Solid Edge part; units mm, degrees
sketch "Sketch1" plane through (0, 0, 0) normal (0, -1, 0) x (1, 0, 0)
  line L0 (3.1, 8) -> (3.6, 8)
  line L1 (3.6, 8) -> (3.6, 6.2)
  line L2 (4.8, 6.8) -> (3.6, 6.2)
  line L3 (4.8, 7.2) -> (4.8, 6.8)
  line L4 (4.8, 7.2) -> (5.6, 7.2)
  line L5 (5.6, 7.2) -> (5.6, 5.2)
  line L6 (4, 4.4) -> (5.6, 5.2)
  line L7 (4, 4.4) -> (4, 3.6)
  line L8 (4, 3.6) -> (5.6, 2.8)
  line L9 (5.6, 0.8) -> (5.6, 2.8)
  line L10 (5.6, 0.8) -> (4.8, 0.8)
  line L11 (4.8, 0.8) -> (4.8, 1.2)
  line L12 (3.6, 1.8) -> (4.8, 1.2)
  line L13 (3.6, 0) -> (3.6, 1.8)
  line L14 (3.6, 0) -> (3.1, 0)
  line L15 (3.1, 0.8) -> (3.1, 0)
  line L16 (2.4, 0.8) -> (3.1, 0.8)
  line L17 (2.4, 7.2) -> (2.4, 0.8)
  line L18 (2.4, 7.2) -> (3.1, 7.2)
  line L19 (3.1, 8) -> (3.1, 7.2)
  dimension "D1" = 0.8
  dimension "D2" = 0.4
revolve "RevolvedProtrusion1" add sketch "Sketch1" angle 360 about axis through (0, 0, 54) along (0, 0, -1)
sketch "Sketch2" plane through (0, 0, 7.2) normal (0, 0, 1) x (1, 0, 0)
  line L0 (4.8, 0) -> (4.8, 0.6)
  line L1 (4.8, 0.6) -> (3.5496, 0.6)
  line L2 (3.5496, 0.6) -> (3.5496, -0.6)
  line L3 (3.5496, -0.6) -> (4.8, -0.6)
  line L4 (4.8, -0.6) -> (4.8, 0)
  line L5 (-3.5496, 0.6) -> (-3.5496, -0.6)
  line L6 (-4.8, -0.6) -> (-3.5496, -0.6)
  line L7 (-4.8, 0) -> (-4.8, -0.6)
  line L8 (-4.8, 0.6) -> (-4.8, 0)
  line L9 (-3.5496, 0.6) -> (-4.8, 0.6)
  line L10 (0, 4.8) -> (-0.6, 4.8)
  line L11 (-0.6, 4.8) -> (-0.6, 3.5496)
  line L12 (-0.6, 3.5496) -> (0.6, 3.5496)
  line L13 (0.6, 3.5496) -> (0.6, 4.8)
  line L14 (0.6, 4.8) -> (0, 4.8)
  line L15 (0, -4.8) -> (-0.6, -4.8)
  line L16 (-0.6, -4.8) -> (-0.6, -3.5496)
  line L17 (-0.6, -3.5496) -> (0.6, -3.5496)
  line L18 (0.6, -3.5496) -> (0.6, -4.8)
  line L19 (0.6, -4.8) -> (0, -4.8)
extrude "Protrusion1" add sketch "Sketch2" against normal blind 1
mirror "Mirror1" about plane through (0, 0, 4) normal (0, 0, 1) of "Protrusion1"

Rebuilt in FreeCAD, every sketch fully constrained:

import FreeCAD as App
import Part
import Sketcher
from FreeCAD import Vector
Q = App.Units.Quantity

doc = App.newDocument("Part")
params = doc.addObject("Spreadsheet::Sheet", "Params")
for row, (alias, value) in enumerate([
    ("sketch1_height", "2 mm"),
    ("sketch1_width", "0.5 mm"),
    ("sketch1_width2", "0.7 mm"),
    ("sketch1_width3", "0.8 mm"),
    ("sketch1_height2", "6.4 mm"),
    ("revolution_angle", "360 deg"),
    ("sketch2_width", "1.2 mm"),
    ("pad1_length", "1 mm"),
], start=1):
    params.set(f"A{row}", alias)
    params.set(f"B{row}", "=" + value)
    params.setAlias(f"B{row}", alias)

body = doc.addObject("PartDesign::Body", "Body")

sketch1 = doc.addObject("Sketcher::SketchObject", "Sketch")
body.addObject(sketch1)
sketch1.AttachmentSupport = (doc.XZ_Plane, [""])
sketch1.MapMode = "FlatFace"
sketch1.addGeometry([
    Part.LineSegment(Vector(3.6, 8, 0), Vector(3.1, 8, 0)),
    Part.LineSegment(Vector(3.1, 8, 0), Vector(3.1, 7.2, 0)),
    Part.LineSegment(Vector(3.1, 7.2, 0), Vector(2.4, 7.2, 0)),
    Part.LineSegment(Vector(2.4, 7.2, 0), Vector(2.4, 0.8, 0)),
    Part.LineSegment(Vector(2.4, 0.8, 0), Vector(3.1, 0.8, 0)),
    Part.LineSegment(Vector(3.1, 0.8, 0), Vector(3.1, 0, 0)),
    Part.LineSegment(Vector(3.1, 0, 0), Vector(3.6, 0, 0)),
    Part.LineSegment(Vector(3.6, 0, 0), Vector(3.6, 1.8, 0)),
    Part.LineSegment(Vector(3.6, 1.8, 0), Vector(4.8, 1.2, 0)),
    Part.LineSegment(Vector(4.8, 1.2, 0), Vector(4.8, 0.8, 0)),
    Part.LineSegment(Vector(4.8, 0.8, 0), Vector(5.6, 0.8, 0)),
    Part.LineSegment(Vector(5.6, 0.8, 0), Vector(5.6, 2.8, 0)),
    Part.LineSegment(Vector(5.6, 2.8, 0), Vector(4, 3.6, 0)),
    Part.LineSegment(Vector(4, 3.6, 0), Vector(4, 4.4, 0)),
    Part.LineSegment(Vector(4, 4.4, 0), Vector(5.6, 5.2, 0)),
    Part.LineSegment(Vector(5.6, 5.2, 0), Vector(5.6, 7.2, 0)),
    Part.LineSegment(Vector(5.6, 7.2, 0), Vector(4.8, 7.2, 0)),
    Part.LineSegment(Vector(4.8, 7.2, 0), Vector(4.8, 6.8, 0)),
    Part.LineSegment(Vector(4.8, 6.8, 0), Vector(3.6, 6.2, 0)),
    Part.LineSegment(Vector(3.6, 6.2, 0), Vector(3.6, 8, 0)),
], False)
sketch1.addConstraint([
    Sketcher.Constraint("Coincident", 0, 2, 1, 1),
    Sketcher.Constraint("Coincident", 1, 2, 2, 1),
    Sketcher.Constraint("Coincident", 2, 2, 3, 1),
    Sketcher.Constraint("Coincident", 3, 2, 4, 1),
    Sketcher.Constraint("Coincident", 4, 2, 5, 1),
    Sketcher.Constraint("Coincident", 5, 2, 6, 1),
    Sketcher.Constraint("Coincident", 6, 2, 7, 1),
    Sketcher.Constraint("Coincident", 7, 2, 8, 1),
    Sketcher.Constraint("Coincident", 8, 2, 9, 1),
    Sketcher.Constraint("Coincident", 9, 2, 10, 1),
    Sketcher.Constraint("Coincident", 10, 2, 11, 1),
    Sketcher.Constraint("Coincident", 11, 2, 12, 1),
    Sketcher.Constraint("Coincident", 12, 2, 13, 1),
    Sketcher.Constraint("Coincident", 13, 2, 14, 1),
    Sketcher.Constraint("Coincident", 14, 2, 15, 1),
    Sketcher.Constraint("Coincident", 15, 2, 16, 1),
    Sketcher.Constraint("Coincident", 16, 2, 17, 1),
    Sketcher.Constraint("Coincident", 17, 2, 18, 1),
    Sketcher.Constraint("Coincident", 18, 2, 19, 1),
    Sketcher.Constraint("Coincident", 19, 2, 0, 1),
    Sketcher.Constraint("Horizontal", 0),
    Sketcher.Constraint("Vertical", 1),
    Sketcher.Constraint("Horizontal", 2),
    Sketcher.Constraint("Vertical", 3),
    Sketcher.Constraint("Horizontal", 4),
    Sketcher.Constraint("Vertical", 5),
    Sketcher.Constraint("Horizontal", 6),
    Sketcher.Constraint("Vertical", 7),
    Sketcher.Constraint("Vertical", 9),
    Sketcher.Constraint("Horizontal", 10),
    Sketcher.Constraint("Vertical", 11),
    Sketcher.Constraint("Vertical", 13),
    Sketcher.Constraint("Vertical", 15),
    Sketcher.Constraint("Horizontal", 16),
    Sketcher.Constraint("Vertical", 17),
    Sketcher.Constraint("Vertical", 19),
    Sketcher.Constraint("PointOnObject", 5, 2, -1),
    Sketcher.Constraint("Parallel", 8, 12),
    Sketcher.Constraint("Parallel", 14, 18),
    Sketcher.Constraint("Horizontal", 4, 2, 9, 2),
    Sketcher.Constraint("Horizontal", 2, 2, 15, 2),
    Sketcher.Constraint("Vertical", 1, 2, 4, 2),
    Sketcher.Constraint("Vertical", 11, 2, 14, 2),
    Sketcher.Constraint("Vertical", 9, 2, 16, 2),
    Sketcher.Constraint("Vertical", 7, 2, 18, 2),
    Sketcher.Constraint("Equal", 16, 1),
    Sketcher.Constraint("Equal", 1, 5),
    Sketcher.Constraint("Equal", 5, 13),
    Sketcher.Constraint("Equal", 11, 15),
    Sketcher.Constraint("Equal", 9, 17),
    Sketcher.Constraint("Equal", 7, 19),
    Sketcher.Constraint("DistanceY", 11, 1, 11, 2, Q("2 mm")),
    Sketcher.Constraint("DistanceX", 0, 2, 0, 1, Q("0.5 mm")),
    Sketcher.Constraint("DistanceX", 2, 2, 2, 1, Q("0.7 mm")),
    Sketcher.Constraint("DistanceX", 10, 1, 10, 2, Q("0.8 mm")),
    Sketcher.Constraint("DistanceY", 3, 2, 3, 1, Q("6.4 mm")),
    Sketcher.Constraint("DistanceY", 7, 1, 7, 2, Q("1.8 mm")),
    Sketcher.Constraint("DistanceY", 9, 2, 9, 1, Q("0.4 mm")),
    Sketcher.Constraint("DistanceX", -1, 1, 12, 2, Q("4 mm")),
    Sketcher.Constraint("DistanceX", 6, 2, 10, 2, Q("2 mm")),
])
sketch1.setExpression("Constraints[51]", "Params.sketch1_height")
sketch1.setExpression("Constraints[52]", "Params.sketch1_width")
sketch1.setExpression("Constraints[53]", "Params.sketch1_width2")
sketch1.setExpression("Constraints[54]", "Params.sketch1_width3")
sketch1.setExpression("Constraints[55]", "Params.sketch1_height2")
revolution = doc.addObject("PartDesign::Revolution", "Revolution")
body.addObject(revolution)
revolution.Profile = sketch1
revolution.ReferenceAxis = (sketch1, ["V_Axis"])
revolution.setExpression("Angle", "Params.revolution_angle")

sketch2 = doc.addObject("Sketcher::SketchObject", "Sketch001")
body.addObject(sketch2)
sketch2.AttachmentSupport = (doc.XY_Plane, [""])
sketch2.MapMode = "FlatFace"
sketch2.AttachmentOffset = App.Placement(Vector(0, 0, 7.2), App.Rotation())
sketch2.addGeometry([
    Part.LineSegment(Vector(4.8, -0.6, 0), Vector(4.8, 0.6, 0)),
    Part.LineSegment(Vector(4.8, 0.6, 0), Vector(3.5496, 0.6, 0)),
    Part.LineSegment(Vector(3.5496, 0.6, 0), Vector(3.5496, -0.6, 0)),
    Part.LineSegment(Vector(3.5496, -0.6, 0), Vector(4.8, -0.6, 0)),
    Part.LineSegment(Vector(-3.5496, -0.6, 0), Vector(-3.5496, 0.6, 0)),
    Part.LineSegment(Vector(-3.5496, 0.6, 0), Vector(-4.8, 0.6, 0)),
    Part.LineSegment(Vector(-4.8, 0.6, 0), Vector(-4.8, -0.6, 0)),
    Part.LineSegment(Vector(-4.8, -0.6, 0), Vector(-3.5496, -0.6, 0)),
    Part.LineSegment(Vector(0.6, 4.8, 0), Vector(-0.6, 4.8, 0)),
    Part.LineSegment(Vector(-0.6, 4.8, 0), Vector(-0.6, 3.5496, 0)),
    Part.LineSegment(Vector(-0.6, 3.5496, 0), Vector(0.6, 3.5496, 0)),
    Part.LineSegment(Vector(0.6, 3.5496, 0), Vector(0.6, 4.8, 0)),
    Part.LineSegment(Vector(-0.6, -4.8, 0), Vector(0.6, -4.8, 0)),
    Part.LineSegment(Vector(0.6, -4.8, 0), Vector(0.6, -3.5496, 0)),
    Part.LineSegment(Vector(0.6, -3.5496, 0), Vector(-0.6, -3.5496, 0)),
    Part.LineSegment(Vector(-0.6, -3.5496, 0), Vector(-0.6, -4.8, 0)),
], False)
sketch2.addConstraint([
    Sketcher.Constraint("Coincident", 0, 2, 1, 1),
    Sketcher.Constraint("Coincident", 1, 2, 2, 1),
    Sketcher.Constraint("Coincident", 2, 2, 3, 1),
    Sketcher.Constraint("Coincident", 3, 2, 0, 1),
    Sketcher.Constraint("Coincident", 4, 2, 5, 1),
    Sketcher.Constraint("Coincident", 5, 2, 6, 1),
    Sketcher.Constraint("Coincident", 6, 2, 7, 1),
    Sketcher.Constraint("Coincident", 7, 2, 4, 1),
    Sketcher.Constraint("Coincident", 8, 2, 9, 1),
    Sketcher.Constraint("Coincident", 9, 2, 10, 1),
    Sketcher.Constraint("Coincident", 10, 2, 11, 1),
    Sketcher.Constraint("Coincident", 11, 2, 8, 1),
    Sketcher.Constraint("Coincident", 12, 2, 13, 1),
    Sketcher.Constraint("Coincident", 13, 2, 14, 1),
    Sketcher.Constraint("Coincident", 14, 2, 15, 1),
    Sketcher.Constraint("Coincident", 15, 2, 12, 1),
    Sketcher.Constraint("Vertical", 0),
    Sketcher.Constraint("Horizontal", 1),
    Sketcher.Constraint("Vertical", 2),
    Sketcher.Constraint("Horizontal", 3),
    Sketcher.Constraint("Vertical", 4),
    Sketcher.Constraint("Horizontal", 5),
    Sketcher.Constraint("Vertical", 6),
    Sketcher.Constraint("Horizontal", 7),
    Sketcher.Constraint("Horizontal", 8),
    Sketcher.Constraint("Vertical", 9),
    Sketcher.Constraint("Horizontal", 10),
    Sketcher.Constraint("Vertical", 11),
    Sketcher.Constraint("Horizontal", 12),
    Sketcher.Constraint("Vertical", 13),
    Sketcher.Constraint("Horizontal", 14),
    Sketcher.Constraint("Vertical", 15),
    Sketcher.Constraint("Symmetric", 2, 2, 4, 2, -1, 1),
    Sketcher.Constraint("Symmetric", 0, 2, 6, 2, -1, 1),
    Sketcher.Constraint("Symmetric", 8, 2, 12, 2, -1, 1),
    Sketcher.Constraint("Symmetric", 10, 2, 14, 2, -1, 1),
    Sketcher.Constraint("Horizontal", 1, 2, 4, 2),
    Sketcher.Constraint("Vertical", 11, 2, 12, 2),
    Sketcher.Constraint("Equal", 14, 0),
    Sketcher.Constraint("Equal", 7, 9),
    Sketcher.Constraint("DistanceX", 8, 2, 8, 1, Q("1.2 mm")),
    Sketcher.Constraint("DistanceX", -1, 1, 0, 2, Q("4.8 mm")),
    Sketcher.Constraint("DistanceY", -1, 1, 8, 2, Q("4.8 mm")),
    Sketcher.Constraint("DistanceX", 1, 2, 1, 1, Q("1.2504 mm")),
])
sketch2.setExpression("Constraints[40]", "Params.sketch2_width")
pad1 = doc.addObject("PartDesign::Pad", "Pad")
body.addObject(pad1)
pad1.Profile = sketch2
pad1.setExpression("Length", "Params.pad1_length")
pad1.Reversed = True
doc.recompute()

datumplane = doc.addObject("PartDesign::Plane", "DatumPlane")
body.addObject(datumplane)
datumplane.AttachmentSupport = (doc.XY_Plane, [""])
datumplane.MapMode = "FlatFace"
datumplane.AttachmentOffset = App.Placement(Vector(0, 0, 4), App.Rotation())
mirrored = doc.addObject("PartDesign::Mirrored", "Mirrored")
body.addObject(mirrored)
mirrored.Originals = [pad1]
mirrored.MirrorPlane = (datumplane, [""])
body.Tip = mirrored

doc.recompute()
